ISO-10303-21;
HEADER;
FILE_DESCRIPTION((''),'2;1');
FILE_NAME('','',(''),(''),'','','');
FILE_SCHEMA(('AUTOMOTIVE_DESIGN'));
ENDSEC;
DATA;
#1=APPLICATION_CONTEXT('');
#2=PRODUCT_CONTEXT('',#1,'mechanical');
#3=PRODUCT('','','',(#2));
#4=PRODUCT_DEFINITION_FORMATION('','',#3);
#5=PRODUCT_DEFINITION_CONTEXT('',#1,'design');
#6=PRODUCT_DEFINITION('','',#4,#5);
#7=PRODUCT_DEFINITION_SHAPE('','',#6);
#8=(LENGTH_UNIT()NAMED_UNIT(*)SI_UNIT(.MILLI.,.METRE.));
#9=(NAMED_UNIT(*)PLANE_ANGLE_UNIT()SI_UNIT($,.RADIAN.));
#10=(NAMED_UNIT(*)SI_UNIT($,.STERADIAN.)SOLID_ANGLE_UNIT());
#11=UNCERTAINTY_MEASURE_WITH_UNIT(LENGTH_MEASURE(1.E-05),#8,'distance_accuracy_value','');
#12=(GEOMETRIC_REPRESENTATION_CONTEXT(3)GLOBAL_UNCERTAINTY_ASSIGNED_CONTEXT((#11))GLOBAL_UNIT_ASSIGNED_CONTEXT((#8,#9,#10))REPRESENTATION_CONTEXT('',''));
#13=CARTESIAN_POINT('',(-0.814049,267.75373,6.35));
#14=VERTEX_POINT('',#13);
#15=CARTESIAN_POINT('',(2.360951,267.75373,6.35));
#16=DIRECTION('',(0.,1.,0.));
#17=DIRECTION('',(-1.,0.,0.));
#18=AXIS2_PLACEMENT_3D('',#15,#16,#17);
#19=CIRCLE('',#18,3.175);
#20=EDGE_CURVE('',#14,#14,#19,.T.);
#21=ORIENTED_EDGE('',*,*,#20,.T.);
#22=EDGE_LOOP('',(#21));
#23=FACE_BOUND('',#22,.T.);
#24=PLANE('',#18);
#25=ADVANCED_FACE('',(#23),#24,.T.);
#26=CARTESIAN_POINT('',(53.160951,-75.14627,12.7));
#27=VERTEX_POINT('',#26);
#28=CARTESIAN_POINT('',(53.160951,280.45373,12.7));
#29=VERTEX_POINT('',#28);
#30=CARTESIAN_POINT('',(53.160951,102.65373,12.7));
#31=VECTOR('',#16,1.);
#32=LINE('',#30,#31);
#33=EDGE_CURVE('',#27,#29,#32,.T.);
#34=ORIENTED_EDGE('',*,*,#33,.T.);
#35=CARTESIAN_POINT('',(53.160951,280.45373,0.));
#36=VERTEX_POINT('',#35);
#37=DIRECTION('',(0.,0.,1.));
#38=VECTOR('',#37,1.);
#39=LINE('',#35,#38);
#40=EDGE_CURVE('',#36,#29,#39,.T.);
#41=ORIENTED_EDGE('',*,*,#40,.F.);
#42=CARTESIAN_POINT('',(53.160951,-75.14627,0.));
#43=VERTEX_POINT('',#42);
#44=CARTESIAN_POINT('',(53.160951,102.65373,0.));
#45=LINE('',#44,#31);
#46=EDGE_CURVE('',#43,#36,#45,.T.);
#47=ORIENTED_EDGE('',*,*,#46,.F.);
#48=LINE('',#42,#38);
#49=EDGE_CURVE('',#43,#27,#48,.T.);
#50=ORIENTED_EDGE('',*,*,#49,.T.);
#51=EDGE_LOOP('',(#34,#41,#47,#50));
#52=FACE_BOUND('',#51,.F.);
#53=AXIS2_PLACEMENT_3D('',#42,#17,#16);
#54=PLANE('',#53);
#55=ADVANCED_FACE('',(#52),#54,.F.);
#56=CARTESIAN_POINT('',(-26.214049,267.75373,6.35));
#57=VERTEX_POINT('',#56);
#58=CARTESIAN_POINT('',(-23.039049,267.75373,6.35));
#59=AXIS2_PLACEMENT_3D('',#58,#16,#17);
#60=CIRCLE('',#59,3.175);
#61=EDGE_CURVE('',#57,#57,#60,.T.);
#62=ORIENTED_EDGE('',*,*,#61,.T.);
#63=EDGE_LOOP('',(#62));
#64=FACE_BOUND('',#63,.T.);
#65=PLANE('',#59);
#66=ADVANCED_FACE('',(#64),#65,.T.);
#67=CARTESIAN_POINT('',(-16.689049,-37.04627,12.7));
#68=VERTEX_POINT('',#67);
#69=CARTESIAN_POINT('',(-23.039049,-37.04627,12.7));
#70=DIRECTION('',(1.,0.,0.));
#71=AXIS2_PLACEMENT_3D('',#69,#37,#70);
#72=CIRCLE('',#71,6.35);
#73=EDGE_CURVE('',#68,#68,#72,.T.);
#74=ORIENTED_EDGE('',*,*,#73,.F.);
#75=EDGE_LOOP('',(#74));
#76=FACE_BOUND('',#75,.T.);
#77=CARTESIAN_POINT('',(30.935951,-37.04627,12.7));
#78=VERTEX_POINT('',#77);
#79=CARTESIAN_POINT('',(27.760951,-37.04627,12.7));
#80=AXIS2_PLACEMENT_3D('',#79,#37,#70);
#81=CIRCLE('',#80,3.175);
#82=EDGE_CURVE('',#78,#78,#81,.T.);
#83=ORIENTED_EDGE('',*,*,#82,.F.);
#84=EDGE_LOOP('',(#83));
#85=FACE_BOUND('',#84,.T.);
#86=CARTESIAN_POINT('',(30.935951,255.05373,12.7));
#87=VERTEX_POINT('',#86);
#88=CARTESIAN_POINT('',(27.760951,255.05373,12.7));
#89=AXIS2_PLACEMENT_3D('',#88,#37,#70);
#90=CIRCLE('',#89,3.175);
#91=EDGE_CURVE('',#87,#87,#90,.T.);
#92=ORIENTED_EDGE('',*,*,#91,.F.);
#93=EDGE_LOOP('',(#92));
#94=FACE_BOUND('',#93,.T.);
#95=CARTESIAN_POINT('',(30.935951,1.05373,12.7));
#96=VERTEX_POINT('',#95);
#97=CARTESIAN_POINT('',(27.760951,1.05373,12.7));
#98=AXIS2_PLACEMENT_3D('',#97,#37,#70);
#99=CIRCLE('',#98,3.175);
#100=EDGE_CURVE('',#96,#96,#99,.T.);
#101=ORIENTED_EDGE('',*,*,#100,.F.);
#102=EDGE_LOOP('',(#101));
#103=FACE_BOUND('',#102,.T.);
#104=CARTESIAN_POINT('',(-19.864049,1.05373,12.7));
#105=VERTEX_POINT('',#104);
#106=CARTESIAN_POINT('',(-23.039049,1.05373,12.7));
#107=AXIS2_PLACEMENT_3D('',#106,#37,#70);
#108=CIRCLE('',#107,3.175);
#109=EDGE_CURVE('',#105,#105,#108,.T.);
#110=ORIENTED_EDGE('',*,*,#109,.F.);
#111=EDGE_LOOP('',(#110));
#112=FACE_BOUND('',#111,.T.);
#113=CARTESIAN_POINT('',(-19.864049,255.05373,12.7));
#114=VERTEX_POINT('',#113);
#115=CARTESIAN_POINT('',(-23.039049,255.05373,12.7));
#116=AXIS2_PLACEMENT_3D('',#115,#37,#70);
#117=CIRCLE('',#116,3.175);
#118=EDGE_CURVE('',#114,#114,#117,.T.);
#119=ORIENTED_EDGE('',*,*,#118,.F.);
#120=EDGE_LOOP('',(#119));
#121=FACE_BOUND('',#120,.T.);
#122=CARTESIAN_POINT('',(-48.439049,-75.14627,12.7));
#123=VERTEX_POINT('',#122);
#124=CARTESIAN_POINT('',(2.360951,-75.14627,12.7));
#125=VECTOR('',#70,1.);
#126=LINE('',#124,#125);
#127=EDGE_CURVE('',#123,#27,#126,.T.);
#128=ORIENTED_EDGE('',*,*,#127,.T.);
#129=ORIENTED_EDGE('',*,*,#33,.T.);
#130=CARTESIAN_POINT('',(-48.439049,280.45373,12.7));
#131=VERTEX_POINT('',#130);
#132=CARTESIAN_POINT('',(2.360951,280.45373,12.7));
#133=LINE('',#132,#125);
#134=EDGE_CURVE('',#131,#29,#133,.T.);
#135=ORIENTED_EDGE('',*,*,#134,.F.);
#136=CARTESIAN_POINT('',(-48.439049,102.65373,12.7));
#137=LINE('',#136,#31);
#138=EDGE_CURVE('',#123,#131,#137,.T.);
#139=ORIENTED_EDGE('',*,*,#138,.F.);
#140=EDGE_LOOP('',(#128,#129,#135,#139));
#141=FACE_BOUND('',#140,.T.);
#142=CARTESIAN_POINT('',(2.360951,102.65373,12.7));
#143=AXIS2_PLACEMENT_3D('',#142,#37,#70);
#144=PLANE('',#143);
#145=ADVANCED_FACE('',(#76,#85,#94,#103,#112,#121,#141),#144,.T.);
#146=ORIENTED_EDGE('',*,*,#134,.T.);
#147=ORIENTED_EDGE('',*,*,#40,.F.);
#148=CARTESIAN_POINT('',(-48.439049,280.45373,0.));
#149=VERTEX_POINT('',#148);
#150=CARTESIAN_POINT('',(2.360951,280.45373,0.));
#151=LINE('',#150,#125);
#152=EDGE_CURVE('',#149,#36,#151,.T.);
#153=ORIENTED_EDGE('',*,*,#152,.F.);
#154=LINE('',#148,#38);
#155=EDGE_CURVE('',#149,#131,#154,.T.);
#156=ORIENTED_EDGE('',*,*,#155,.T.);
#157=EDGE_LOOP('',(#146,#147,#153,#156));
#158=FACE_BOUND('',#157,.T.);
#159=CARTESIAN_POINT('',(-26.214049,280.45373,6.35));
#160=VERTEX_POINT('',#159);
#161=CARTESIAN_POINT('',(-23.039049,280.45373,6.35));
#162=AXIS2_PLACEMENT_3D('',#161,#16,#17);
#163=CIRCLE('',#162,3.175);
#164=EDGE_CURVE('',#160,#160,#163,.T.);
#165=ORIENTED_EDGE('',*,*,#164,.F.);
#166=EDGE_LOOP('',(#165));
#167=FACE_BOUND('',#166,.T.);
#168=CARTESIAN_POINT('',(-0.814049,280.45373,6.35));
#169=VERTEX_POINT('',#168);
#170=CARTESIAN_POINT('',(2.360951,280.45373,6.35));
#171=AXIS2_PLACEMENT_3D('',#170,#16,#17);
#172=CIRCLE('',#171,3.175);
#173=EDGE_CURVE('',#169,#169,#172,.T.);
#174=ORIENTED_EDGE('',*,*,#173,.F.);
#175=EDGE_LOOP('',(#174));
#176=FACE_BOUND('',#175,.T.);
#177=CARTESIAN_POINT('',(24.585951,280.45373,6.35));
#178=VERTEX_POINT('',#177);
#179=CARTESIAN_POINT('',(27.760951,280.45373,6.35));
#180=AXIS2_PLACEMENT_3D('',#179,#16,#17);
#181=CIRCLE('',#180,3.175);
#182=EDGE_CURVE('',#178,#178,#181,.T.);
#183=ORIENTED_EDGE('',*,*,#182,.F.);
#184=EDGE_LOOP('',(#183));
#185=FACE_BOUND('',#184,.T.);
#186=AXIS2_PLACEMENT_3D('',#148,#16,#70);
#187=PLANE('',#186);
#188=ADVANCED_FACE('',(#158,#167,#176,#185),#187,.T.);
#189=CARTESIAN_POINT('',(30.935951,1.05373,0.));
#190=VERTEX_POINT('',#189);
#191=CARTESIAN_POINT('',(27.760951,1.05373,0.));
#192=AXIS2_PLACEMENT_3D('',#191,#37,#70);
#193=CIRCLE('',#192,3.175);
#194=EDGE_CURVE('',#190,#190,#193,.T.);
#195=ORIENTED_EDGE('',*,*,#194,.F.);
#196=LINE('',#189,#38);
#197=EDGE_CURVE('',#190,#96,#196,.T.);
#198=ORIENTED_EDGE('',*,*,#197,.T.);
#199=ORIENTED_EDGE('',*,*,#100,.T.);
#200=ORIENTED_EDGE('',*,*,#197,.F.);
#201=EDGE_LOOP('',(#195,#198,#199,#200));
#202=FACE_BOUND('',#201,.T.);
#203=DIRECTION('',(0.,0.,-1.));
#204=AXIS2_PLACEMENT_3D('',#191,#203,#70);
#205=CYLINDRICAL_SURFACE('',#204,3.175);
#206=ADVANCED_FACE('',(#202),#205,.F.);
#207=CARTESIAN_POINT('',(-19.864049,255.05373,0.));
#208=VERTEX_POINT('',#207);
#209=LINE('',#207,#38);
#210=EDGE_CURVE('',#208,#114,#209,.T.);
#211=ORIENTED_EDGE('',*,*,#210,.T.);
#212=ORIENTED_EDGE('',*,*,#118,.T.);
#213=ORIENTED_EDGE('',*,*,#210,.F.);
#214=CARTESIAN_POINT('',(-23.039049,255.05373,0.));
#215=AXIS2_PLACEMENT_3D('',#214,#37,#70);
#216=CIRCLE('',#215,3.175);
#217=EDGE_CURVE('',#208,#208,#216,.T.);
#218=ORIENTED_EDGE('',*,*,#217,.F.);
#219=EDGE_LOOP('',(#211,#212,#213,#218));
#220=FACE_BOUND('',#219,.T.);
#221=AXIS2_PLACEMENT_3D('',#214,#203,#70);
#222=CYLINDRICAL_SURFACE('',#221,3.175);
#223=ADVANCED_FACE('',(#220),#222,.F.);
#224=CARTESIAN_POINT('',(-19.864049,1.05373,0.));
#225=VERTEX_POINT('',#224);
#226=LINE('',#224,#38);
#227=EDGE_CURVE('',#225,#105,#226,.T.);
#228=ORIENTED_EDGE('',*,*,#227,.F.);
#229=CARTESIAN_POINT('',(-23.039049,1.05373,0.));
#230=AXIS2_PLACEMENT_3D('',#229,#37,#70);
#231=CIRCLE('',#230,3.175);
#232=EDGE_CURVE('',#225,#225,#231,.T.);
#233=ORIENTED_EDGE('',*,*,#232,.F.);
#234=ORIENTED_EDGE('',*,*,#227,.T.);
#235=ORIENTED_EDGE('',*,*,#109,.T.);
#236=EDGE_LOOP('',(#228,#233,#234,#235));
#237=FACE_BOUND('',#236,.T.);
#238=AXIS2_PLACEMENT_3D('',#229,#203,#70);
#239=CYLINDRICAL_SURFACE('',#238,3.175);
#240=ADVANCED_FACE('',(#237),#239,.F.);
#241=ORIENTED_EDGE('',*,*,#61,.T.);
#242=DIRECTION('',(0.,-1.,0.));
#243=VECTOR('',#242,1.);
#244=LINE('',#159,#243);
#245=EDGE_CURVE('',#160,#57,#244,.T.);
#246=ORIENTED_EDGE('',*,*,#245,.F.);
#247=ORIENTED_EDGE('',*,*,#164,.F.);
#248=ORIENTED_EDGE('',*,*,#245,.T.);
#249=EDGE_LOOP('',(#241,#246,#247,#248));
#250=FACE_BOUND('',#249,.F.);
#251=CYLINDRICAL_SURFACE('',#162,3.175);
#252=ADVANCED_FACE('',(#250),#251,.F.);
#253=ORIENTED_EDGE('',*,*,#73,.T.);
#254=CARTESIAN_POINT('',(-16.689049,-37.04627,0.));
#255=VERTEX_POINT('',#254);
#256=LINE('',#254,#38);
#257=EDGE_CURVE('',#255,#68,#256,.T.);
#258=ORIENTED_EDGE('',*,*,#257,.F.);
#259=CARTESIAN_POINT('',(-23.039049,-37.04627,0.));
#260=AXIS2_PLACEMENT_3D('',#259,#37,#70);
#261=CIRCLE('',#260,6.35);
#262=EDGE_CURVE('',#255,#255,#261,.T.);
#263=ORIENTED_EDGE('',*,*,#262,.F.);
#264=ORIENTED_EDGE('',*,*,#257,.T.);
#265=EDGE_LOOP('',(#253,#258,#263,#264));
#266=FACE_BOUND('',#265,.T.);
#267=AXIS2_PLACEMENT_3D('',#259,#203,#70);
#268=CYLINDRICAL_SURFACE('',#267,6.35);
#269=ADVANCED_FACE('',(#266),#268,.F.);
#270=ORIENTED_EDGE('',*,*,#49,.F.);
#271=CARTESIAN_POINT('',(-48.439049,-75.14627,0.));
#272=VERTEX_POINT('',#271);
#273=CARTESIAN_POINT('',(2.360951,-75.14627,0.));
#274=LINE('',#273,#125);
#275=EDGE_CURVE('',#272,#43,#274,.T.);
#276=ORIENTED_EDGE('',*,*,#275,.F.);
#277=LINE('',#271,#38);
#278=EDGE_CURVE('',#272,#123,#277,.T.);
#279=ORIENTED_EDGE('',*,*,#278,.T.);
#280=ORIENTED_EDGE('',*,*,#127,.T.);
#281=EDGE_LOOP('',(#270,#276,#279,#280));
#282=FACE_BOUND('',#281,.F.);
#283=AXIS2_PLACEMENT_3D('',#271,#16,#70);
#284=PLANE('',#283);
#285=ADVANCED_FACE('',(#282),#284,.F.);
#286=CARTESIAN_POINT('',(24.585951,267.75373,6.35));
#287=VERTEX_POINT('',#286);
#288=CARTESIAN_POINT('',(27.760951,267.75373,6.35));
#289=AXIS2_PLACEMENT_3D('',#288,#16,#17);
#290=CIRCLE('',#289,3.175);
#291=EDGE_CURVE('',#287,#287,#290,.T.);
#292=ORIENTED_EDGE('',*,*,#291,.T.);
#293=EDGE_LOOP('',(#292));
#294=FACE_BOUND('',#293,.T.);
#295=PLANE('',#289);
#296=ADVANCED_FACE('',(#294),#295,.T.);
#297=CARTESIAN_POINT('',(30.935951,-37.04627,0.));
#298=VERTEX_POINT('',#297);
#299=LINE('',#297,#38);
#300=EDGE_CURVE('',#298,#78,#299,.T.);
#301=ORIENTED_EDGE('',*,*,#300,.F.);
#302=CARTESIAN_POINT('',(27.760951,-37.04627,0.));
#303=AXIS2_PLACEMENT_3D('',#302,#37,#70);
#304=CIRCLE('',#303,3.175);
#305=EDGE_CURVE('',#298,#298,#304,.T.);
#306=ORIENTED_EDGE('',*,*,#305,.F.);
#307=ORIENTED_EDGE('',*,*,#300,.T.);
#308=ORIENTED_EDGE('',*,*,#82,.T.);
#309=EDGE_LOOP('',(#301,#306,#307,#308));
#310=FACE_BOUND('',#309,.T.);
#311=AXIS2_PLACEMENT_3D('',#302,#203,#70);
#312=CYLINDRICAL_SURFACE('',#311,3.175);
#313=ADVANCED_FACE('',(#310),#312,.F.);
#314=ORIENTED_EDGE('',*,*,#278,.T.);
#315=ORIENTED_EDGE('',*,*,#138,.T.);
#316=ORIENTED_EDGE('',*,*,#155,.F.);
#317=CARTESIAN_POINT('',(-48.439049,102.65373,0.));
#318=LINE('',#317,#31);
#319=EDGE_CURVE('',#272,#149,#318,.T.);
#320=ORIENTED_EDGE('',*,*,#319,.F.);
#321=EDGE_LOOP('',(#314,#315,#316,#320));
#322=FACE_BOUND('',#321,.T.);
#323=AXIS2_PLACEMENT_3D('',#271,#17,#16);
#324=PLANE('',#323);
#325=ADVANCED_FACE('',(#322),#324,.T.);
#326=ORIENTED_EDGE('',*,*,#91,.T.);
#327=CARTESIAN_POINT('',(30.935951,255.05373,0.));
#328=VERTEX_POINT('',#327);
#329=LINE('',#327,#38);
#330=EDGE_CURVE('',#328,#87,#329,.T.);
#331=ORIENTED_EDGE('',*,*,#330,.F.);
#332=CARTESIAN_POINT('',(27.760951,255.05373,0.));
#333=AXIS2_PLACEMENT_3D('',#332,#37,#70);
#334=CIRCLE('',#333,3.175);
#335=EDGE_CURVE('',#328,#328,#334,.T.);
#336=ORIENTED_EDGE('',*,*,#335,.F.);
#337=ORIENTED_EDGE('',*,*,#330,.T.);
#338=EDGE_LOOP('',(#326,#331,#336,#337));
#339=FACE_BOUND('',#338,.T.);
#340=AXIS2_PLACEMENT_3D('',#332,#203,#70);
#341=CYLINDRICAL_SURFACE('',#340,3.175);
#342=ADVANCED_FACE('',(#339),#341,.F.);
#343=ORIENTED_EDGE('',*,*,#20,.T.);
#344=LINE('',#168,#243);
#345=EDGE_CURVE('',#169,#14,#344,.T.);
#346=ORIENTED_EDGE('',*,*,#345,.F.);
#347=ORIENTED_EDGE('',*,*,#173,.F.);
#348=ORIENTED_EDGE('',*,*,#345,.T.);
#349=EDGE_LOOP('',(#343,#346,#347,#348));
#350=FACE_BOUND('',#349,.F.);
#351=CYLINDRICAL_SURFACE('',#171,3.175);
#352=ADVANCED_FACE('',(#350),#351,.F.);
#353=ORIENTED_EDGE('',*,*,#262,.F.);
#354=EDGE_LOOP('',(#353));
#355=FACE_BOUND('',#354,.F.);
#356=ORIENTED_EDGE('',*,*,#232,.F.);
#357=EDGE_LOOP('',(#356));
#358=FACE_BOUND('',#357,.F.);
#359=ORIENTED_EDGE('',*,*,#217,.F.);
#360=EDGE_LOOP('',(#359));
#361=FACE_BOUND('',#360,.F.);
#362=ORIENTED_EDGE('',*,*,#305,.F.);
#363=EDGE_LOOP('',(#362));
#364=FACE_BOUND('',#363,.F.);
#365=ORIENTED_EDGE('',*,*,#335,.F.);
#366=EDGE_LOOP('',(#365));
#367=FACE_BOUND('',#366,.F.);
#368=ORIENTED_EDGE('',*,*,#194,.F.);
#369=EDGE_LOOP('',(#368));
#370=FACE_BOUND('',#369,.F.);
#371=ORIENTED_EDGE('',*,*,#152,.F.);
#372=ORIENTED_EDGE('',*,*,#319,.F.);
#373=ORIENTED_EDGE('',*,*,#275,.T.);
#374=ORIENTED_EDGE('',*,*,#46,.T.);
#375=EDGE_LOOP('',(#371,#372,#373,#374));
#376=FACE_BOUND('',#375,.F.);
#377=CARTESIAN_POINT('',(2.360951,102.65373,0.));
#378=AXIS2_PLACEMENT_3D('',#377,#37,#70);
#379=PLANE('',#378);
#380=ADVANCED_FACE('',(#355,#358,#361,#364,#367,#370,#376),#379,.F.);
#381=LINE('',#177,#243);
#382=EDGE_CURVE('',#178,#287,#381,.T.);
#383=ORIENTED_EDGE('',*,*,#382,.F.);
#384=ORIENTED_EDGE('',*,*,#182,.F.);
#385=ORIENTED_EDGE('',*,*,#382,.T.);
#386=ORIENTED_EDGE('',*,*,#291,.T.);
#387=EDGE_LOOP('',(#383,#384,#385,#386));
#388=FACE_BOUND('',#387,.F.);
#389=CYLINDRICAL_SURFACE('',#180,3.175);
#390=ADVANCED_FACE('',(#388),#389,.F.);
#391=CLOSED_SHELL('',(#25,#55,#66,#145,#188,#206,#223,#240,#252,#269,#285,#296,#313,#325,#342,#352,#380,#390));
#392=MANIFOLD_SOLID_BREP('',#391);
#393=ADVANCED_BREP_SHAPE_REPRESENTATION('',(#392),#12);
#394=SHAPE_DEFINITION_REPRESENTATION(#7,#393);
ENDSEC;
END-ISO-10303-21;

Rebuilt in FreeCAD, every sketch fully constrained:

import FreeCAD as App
import Part
import Sketcher
from FreeCAD import Vector
Q = App.Units.Quantity

doc = App.newDocument("Part")
body = doc.addObject("PartDesign::Body", "Body")

sketch1 = doc.addObject("Sketcher::SketchObject", "Sketch")
body.addObject(sketch1)
sketch1.AttachmentSupport = (doc.XY_Plane, [""])
sketch1.MapMode = "FlatFace"
sketch1.addGeometry(Part.LineSegment(Vector(-48.4, 280.5, 0), Vector(-48.4, -75.1, 0)), False)
sketch1.addGeometry(Part.LineSegment(Vector(-48.4, -75.1, 0), Vector(53.2, -75.1, 0)), False)
sketch1.addGeometry(Part.LineSegment(Vector(53.2, -75.1, 0), Vector(53.2, 280.5, 0)), False)
sketch1.addGeometry(Part.LineSegment(Vector(53.2, 280.5, 0), Vector(-48.4, 280.5, 0)), False)
sketch1.addGeometry(Part.Circle(Vector(-23, -37, 0), Vector(0, 0, 1), 6.3), False)
sketch1.addGeometry(Part.Circle(Vector(-23, 1.1, 0), Vector(0, 0, 1), 3.2), False)
sketch1.addGeometry(Part.Circle(Vector(27.8, -37, 0), Vector(0, 0, 1), 3.2), False)
sketch1.addGeometry(Part.Circle(Vector(27.8, 1.1, 0), Vector(0, 0, 1), 3.2), False)
sketch1.addGeometry(Part.Circle(Vector(-23, 255.1, 0), Vector(0, 0, 1), 3.2), False)
sketch1.addGeometry(Part.Circle(Vector(27.8, 255.1, 0), Vector(0, 0, 1), 3.2), False)
sketch1.addConstraint(Sketcher.Constraint("Coincident", 0, 2, 1, 1))
sketch1.addConstraint(Sketcher.Constraint("Coincident", 1, 2, 2, 1))
sketch1.addConstraint(Sketcher.Constraint("Coincident", 2, 2, 3, 1))
sketch1.addConstraint(Sketcher.Constraint("Coincident", 3, 2, 0, 1))
sketch1.addConstraint(Sketcher.Constraint("Vertical", 0))
sketch1.addConstraint(Sketcher.Constraint("Horizontal", 1))
sketch1.addConstraint(Sketcher.Constraint("Vertical", 2))
sketch1.addConstraint(Sketcher.Constraint("Horizontal", 3))
sketch1.addConstraint(Sketcher.Constraint("Equal", 5, 6))
sketch1.addConstraint(Sketcher.Constraint("Equal", 6, 7))
sketch1.addConstraint(Sketcher.Constraint("Equal", 7, 8))
sketch1.addConstraint(Sketcher.Constraint("Equal", 8, 9))
sketch1.addConstraint(Sketcher.Constraint("Horizontal", 4, 3, 6, 3))
sketch1.addConstraint(Sketcher.Constraint("Horizontal", 5, 3, 7, 3))
sketch1.addConstraint(Sketcher.Constraint("Horizontal", 8, 3, 9, 3))
sketch1.addConstraint(Sketcher.Constraint("Vertical", 4, 3, 5, 3))
sketch1.addConstraint(Sketcher.Constraint("Vertical", 6, 3, 7, 3))
sketch1.addConstraint(Sketcher.Constraint("Vertical", 5, 3, 8, 3))
sketch1.addConstraint(Sketcher.Constraint("Vertical", 7, 3, 9, 3))
sketch1.addConstraint(Sketcher.Constraint("Diameter", 4, Q("0.5 in")))
sketch1.addConstraint(Sketcher.Constraint("Diameter", 5, Q("0.25 in")))
sketch1.addConstraint(Sketcher.Constraint("DistanceX", 1, 1, 1, 2, Q("4 in")))
sketch1.addConstraint(Sketcher.Constraint("DistanceY", 0, 2, 0, 1, Q("14 in")))
sketch1.addConstraint(Sketcher.Constraint("DistanceX", 4, 3, 6, 3, Q("2 in")))
sketch1.addConstraint(Sketcher.Constraint("DistanceY", 5, 3, 8, 3, Q("10 in")))
sketch1.addConstraint(Sketcher.Constraint("DistanceX", 0, 2, 4, 3, Q("1 in")))
sketch1.addConstraint(Sketcher.Constraint("DistanceY", 0, 2, 5, 3, Q("3 in")))
sketch1.addConstraint(Sketcher.Constraint("DistanceY", 4, 3, 5, 3, Q("1.5 in")))
sketch1.addConstraint(Sketcher.Constraint("DistanceX", 4, 3, -1, 1, 23.039049))
sketch1.addConstraint(Sketcher.Constraint("DistanceY", 4, 3, -1, 1, 37.04627))
pad1 = doc.addObject("PartDesign::Pad", "Pad")
body.addObject(pad1)
pad1.Profile = sketch1
pad1.Length = Q("0.5 in")

sketch2 = doc.addObject("Sketcher::SketchObject", "Sketch001")
body.addObject(sketch2)
sketch2.AttachmentSupport = (doc.XZ_Plane, [""])
sketch2.MapMode = "FlatFace"
sketch2.AttachmentOffset = App.Placement(Vector(0, 0, -280.45373), App.Rotation())
sketch2.addGeometry(Part.Circle(Vector(27.8, 6.3, 0), Vector(0, 0, 1), 3.2), False)
sketch2.addGeometry(Part.Circle(Vector(2.4, 6.3, 0), Vector(0, 0, 1), 3.2), False)
sketch2.addGeometry(Part.Circle(Vector(-23, 6.3, 0), Vector(0, 0, 1), 3.2), False)
sketch2.addConstraint(Sketcher.Constraint("Equal", 0, 1))
sketch2.addConstraint(Sketcher.Constraint("Equal", 1, 2))
sketch2.addConstraint(Sketcher.Constraint("Horizontal", 0, 3, 1, 3))
sketch2.addConstraint(Sketcher.Constraint("Horizontal", 1, 3, 2, 3))
sketch2.addConstraint(Sketcher.Constraint("Diameter", 0, Q("0.25 in")))
sketch2.addConstraint(Sketcher.Constraint("DistanceX", 1, 3, 0, 3, Q("1 in")))
sketch2.addConstraint(Sketcher.Constraint("DistanceX", 2, 3, 1, 3, Q("1 in")))
sketch2.addConstraint(Sketcher.Constraint("DistanceY", -1, 1, 0, 3, Q("0.25 in")))
sketch2.addConstraint(Sketcher.Constraint("DistanceX", -1, 1, 0, 3, 27.760951))
pocket1 = doc.addObject("PartDesign::Pocket", "Pocket")
body.addObject(pocket1)
pocket1.Profile = sketch2
pocket1.Length = Q("0.5 in")
pocket1.Reversed = True

doc.recompute()
